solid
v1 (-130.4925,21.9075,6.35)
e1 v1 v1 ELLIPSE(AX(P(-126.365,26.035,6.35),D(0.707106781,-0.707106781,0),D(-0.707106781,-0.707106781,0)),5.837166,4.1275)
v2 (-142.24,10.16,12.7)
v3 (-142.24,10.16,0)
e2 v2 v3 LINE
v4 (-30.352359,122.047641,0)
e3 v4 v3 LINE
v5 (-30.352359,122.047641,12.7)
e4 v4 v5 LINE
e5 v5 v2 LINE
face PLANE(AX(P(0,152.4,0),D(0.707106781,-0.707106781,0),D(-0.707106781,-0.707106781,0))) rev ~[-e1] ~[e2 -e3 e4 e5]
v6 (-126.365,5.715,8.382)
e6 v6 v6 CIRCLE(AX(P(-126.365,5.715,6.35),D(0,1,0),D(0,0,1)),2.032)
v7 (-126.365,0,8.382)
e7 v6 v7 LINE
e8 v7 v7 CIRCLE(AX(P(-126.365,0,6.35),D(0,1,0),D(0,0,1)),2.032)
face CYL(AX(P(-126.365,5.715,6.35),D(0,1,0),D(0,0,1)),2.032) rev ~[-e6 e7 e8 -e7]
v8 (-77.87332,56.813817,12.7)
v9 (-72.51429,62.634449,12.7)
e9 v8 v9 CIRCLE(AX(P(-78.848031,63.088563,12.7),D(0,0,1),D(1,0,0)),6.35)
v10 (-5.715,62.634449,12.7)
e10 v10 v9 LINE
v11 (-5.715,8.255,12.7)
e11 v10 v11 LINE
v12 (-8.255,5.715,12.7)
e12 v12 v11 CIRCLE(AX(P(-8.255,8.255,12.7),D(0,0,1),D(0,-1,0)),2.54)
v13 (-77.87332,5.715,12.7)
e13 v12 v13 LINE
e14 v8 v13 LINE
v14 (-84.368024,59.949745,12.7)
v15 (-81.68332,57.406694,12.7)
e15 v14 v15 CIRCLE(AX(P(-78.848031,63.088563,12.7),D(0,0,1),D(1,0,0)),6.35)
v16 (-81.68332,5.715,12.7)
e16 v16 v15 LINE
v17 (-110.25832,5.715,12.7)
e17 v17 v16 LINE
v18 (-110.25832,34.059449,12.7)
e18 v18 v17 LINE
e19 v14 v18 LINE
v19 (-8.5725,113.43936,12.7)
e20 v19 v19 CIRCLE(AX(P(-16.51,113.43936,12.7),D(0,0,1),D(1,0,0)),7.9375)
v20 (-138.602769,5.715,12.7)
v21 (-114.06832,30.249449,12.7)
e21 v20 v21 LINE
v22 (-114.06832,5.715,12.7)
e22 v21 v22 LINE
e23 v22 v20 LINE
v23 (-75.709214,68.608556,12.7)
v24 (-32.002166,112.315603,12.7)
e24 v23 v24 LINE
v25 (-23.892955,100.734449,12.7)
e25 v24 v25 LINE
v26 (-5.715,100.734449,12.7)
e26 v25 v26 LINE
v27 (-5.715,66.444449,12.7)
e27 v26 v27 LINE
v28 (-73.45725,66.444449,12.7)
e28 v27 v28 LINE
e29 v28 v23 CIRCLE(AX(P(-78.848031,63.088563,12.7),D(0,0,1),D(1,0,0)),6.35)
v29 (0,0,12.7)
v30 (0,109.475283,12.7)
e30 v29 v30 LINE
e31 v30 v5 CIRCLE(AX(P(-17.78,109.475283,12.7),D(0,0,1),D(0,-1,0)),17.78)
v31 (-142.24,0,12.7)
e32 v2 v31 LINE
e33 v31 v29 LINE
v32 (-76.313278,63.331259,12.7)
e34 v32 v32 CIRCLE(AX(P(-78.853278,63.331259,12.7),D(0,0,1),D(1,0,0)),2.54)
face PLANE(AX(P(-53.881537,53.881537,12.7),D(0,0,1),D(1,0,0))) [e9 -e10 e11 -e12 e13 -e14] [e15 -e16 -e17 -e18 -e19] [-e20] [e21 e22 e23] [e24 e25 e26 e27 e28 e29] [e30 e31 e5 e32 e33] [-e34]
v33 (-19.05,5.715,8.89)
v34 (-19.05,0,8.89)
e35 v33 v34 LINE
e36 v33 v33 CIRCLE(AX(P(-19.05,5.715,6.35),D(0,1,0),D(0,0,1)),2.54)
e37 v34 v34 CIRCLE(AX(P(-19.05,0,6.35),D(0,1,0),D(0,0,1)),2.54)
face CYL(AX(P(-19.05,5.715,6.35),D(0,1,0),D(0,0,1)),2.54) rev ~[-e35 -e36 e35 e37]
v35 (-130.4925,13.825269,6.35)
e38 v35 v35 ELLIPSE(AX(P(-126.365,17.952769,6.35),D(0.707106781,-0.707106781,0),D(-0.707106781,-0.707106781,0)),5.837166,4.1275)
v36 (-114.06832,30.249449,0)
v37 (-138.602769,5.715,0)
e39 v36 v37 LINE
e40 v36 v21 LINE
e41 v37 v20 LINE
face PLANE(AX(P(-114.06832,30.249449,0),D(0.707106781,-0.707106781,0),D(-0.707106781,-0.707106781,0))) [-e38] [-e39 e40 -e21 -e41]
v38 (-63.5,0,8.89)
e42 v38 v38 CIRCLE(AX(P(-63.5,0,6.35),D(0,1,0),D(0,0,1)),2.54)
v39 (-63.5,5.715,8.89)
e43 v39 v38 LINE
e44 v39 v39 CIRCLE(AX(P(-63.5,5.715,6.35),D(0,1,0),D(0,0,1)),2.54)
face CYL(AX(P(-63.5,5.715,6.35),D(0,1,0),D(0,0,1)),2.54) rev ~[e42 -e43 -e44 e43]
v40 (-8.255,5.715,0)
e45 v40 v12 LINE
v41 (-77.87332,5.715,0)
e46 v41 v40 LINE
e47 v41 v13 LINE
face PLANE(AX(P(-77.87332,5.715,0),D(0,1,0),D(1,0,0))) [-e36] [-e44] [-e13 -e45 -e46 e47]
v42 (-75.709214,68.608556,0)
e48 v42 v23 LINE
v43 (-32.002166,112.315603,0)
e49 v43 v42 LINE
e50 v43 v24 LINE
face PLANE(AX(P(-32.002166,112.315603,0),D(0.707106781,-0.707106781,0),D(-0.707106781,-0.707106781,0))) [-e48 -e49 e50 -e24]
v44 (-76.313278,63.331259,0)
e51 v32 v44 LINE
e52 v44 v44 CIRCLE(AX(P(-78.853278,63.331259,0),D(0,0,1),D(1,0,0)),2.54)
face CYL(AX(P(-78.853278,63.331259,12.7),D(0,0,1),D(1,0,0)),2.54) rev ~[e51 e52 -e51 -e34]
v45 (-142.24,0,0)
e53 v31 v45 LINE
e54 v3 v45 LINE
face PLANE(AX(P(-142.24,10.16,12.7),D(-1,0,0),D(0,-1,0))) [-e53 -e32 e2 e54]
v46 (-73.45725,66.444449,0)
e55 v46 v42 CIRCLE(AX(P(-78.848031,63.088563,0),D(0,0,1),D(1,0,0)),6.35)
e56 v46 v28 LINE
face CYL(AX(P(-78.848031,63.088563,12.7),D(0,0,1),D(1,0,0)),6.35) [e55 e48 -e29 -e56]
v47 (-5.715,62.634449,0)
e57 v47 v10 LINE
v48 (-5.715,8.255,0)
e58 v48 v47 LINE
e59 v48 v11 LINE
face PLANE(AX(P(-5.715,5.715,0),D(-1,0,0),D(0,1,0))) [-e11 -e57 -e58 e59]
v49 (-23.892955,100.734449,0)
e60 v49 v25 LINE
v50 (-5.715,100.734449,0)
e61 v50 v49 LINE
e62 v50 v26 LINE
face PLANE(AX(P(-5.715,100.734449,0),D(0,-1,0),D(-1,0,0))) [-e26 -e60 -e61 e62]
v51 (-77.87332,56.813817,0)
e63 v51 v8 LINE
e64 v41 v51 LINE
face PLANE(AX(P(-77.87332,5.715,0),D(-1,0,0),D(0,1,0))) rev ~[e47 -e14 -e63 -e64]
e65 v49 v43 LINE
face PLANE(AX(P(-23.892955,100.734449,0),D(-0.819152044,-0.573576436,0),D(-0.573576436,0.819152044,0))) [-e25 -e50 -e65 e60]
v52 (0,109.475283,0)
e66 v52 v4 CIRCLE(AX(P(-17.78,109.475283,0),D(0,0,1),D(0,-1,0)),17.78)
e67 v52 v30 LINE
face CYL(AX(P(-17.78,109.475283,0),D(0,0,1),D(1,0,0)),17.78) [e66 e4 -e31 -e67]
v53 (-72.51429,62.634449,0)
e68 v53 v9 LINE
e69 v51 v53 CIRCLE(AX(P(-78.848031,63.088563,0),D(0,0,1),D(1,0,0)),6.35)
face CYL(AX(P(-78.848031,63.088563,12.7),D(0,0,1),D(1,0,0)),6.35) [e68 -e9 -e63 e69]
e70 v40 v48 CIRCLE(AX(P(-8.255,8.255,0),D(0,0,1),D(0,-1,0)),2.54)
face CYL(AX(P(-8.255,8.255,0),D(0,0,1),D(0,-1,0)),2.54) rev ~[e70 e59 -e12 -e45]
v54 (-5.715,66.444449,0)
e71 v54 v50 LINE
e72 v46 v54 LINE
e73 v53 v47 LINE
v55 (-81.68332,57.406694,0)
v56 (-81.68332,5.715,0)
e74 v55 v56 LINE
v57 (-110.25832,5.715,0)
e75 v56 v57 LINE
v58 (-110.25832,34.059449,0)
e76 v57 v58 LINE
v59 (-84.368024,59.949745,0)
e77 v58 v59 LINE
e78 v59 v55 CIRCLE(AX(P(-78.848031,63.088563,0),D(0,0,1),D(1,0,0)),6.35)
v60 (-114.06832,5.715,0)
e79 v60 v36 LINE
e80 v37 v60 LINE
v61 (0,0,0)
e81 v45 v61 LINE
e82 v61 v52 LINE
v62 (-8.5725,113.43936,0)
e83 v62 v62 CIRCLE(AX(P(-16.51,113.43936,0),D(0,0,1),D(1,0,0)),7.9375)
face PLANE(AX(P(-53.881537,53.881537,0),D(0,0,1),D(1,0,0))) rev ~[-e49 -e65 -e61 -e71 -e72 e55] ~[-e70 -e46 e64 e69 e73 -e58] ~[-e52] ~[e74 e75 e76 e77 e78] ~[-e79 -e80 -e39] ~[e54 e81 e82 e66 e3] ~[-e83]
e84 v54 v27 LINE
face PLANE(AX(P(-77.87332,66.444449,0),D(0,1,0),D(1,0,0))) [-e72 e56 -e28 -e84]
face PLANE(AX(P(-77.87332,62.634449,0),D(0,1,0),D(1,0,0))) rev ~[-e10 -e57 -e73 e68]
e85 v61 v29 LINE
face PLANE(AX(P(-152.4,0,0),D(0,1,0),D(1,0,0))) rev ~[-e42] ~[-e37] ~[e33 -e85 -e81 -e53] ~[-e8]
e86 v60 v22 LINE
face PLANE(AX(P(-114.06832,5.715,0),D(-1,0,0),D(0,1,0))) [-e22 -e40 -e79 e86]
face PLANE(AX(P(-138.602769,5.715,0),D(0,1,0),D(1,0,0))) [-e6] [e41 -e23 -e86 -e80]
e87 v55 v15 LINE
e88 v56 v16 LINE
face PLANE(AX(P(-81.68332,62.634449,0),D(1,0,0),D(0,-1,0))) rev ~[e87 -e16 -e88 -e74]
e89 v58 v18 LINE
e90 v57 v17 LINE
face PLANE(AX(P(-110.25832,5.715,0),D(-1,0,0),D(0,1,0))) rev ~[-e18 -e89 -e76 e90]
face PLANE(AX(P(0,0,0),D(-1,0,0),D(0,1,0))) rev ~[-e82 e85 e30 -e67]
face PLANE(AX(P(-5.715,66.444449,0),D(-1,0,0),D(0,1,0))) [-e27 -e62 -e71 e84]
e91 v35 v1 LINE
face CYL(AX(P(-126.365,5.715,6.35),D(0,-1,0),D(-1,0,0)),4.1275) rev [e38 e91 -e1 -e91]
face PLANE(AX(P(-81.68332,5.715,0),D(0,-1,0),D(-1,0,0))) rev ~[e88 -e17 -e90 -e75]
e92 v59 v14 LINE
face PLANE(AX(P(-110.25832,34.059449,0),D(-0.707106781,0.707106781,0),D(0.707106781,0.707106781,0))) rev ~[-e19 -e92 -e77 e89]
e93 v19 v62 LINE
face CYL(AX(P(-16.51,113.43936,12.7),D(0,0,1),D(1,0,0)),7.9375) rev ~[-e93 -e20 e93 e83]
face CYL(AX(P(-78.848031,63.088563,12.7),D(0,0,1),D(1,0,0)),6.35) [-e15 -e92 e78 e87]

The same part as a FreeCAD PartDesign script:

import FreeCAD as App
import Part
import Sketcher
from FreeCAD import Vector
Q = App.Units.Quantity


def edges_at(feature, points):
    """Names of the edges that pass closest to the given points."""
    edges = feature.Shape.Edges
    near = lambda p: min(range(len(edges)), key=lambda i: edges[i].distToShape(Part.Vertex(*p))[0])
    return sorted({f"Edge{near(p) + 1}" for p in points})


def add_polygon(sketch, points):
    """Adds a closed chain of lines whose ends are joined by coincident constraints."""
    first, n = sketch.GeometryCount, len(points)
    for a, b in zip(points, points[1:] + points[:1]):
        sketch.addGeometry(Part.LineSegment(App.Vector(*a, 0), App.Vector(*b, 0)), False)
    for i in range(n):
        sketch.addConstraint(Sketcher.Constraint("Coincident", first + i, 2, first + (i + 1) % n, 1))

doc = App.newDocument("Part")
params = doc.addObject("Spreadsheet::Sheet", "Params")
for row, (alias, value) in enumerate([
    ("sketch1_width", "6 in"),
    ("pad1_length", "0.5 in"),
    ("fillet_radius", "0.7 in"),
    ("sketch2_diameter", "0.625 in"),
    ("sketch2_width", "0.4 in"),
    ("pocket1_length", "1 in"),
    ("sketch3_height", "1.35 in"),
    ("sketch3_width", "1.125 in"),
    ("pocket2_length", "0.97 in"),
    ("sketch4_diameter", "0.16 in"),
    ("pocket3_length", "0.5 in"),
    ("sketch5_diameter", "0.325 in"),
    ("pocket4_length", "1.27 in"),
    ("sketch6_diameter", "0.2 in"),
    ("pocket5_length", "0.5 in"),
    ("fillet2_radius", "0.1 in"),
    ("sketch7_diameter", "0.5 in"),
    ("pad2_length", "0.5 in"),
    ("sketch8_diameter", "0.2 in"),
    ("pocket6_length", "0.5 in"),
], start=1):
    params.set(f"A{row}", alias)
    params.set(f"B{row}", "=" + value)
    params.setAlias(f"B{row}", alias)

body = doc.addObject("PartDesign::Body", "Body")

# Sketch on XY plane
sketch1 = body.newObject("Sketcher::SketchObject", "Sketch")
sketch1.AttachmentSupport = (doc.getObject("XY_Plane"), [""])
sketch1.MapMode = "FlatFace"
add_polygon(sketch1, [(-152, 0), (0, 0), (0, 152)])  # lines 0-2
sketch1.addConstraint(Sketcher.Constraint("Horizontal", 0))
sketch1.addConstraint(Sketcher.Constraint("Vertical", 1))
sketch1.addConstraint(Sketcher.Constraint("Coincident", 0, 2, -1, 1))
sketch1.addConstraint(Sketcher.Constraint("Equal", 0, 1))
sketch1.addConstraint(Sketcher.Constraint("DistanceX", 0, 1, 0, 2, Q("6 in")))
sketch1.setExpression("Constraints[7]", "Params.sketch1_width")
pad1 = body.newObject("PartDesign::Pad", "Pad")
pad1.Profile = sketch1
pad1.setExpression("Length", "Params.pad1_length")
doc.recompute()

fillet = body.newObject("PartDesign::Fillet", "Fillet")
fillet.Base = (pad1, edges_at(pad1, [(0, 152.4, 6.35)]))
fillet.setExpression("Radius", "Params.fillet_radius")

# Sketch on XY plane
sketch2 = body.newObject("Sketcher::SketchObject", "Sketch001")
sketch2.AttachmentSupport = (doc.getObject("XY_Plane"), [""])
sketch2.MapMode = "FlatFace"
sketch2.AttachmentOffset = App.Placement(Vector(0, 0, 0.5 * 25.4), App.Rotation())
sketch2.addGeometry(Part.Circle(Vector(-17, 113, 0), Vector(0, 0, 1), 8), False)  # 0
add_polygon(sketch2, [(-152, 0), (-142, 0), (-142, 10)])  # lines 1-3
sketch2.addConstraint(Sketcher.Constraint("Horizontal", 1))
sketch2.addConstraint(Sketcher.Constraint("Vertical", 2))
sketch2.addConstraint(Sketcher.Constraint("PointOnObject", 1, 2, -1))
sketch2.addConstraint(Sketcher.Constraint("Equal", 1, 2))
sketch2.addConstraint(Sketcher.Constraint("Diameter", 0, Q("0.625 in")))
sketch2.addConstraint(Sketcher.Constraint("DistanceX", 1, 1, 1, 2, Q("0.4 in")))
sketch2.addConstraint(Sketcher.Constraint("DistanceX", 3, 2, -1, 1, Q("6 in")))
sketch2.addConstraint(Sketcher.Constraint("DistanceX", 0, 3, -1, 1, Q("0.65 in")))
sketch2.addConstraint(Sketcher.Constraint("DistanceY", -1, 1, 0, 3, Q("113.43936 mm")))
sketch2.setExpression("Constraints[7]", "Params.sketch2_diameter")
sketch2.setExpression("Constraints[8]", "Params.sketch2_width")
pocket1 = body.newObject("PartDesign::Pocket", "Pocket")
pocket1.Profile = sketch2
pocket1.setExpression("Length", "Params.pocket1_length")

# Sketch on XY plane
sketch3 = body.newObject("Sketcher::SketchObject", "Sketch002")
sketch3.AttachmentSupport = (doc.getObject("XY_Plane"), [""])
sketch3.MapMode = "FlatFace"
add_polygon(sketch3, [(-139, 6), (-114, 6), (-114, 30)])  # lines 0-2
add_polygon(sketch3, [(-110, 34), (-110, 6), (-82, 6), (-82, 63)])  # lines 3-6
add_polygon(sketch3, [(-78, 66), (-6, 66), (-6, 101), (-24, 101), (-32, 112)])  # lines 7-11
add_polygon(sketch3, [(-78, 63), (-78, 6), (-6, 6), (-6, 63)])  # lines 12-15
sketch3.addConstraint(Sketcher.Constraint("Horizontal", 0))
sketch3.addConstraint(Sketcher.Constraint("Vertical", 1))
sketch3.addConstraint(Sketcher.Constraint("Vertical", 3))
sketch3.addConstraint(Sketcher.Constraint("Horizontal", 4))
sketch3.addConstraint(Sketcher.Constraint("Vertical", 5))
sketch3.addConstraint(Sketcher.Constraint("Horizontal", 7))
sketch3.addConstraint(Sketcher.Constraint("Vertical", 8))
sketch3.addConstraint(Sketcher.Constraint("Horizontal", 9))
sketch3.addConstraint(Sketcher.Constraint("Vertical", 12))
sketch3.addConstraint(Sketcher.Constraint("Horizontal", 13))
sketch3.addConstraint(Sketcher.Constraint("Vertical", 14))
sketch3.addConstraint(Sketcher.Constraint("Horizontal", 15))
sketch3.addConstraint(Sketcher.Constraint("Parallel", 2, 6))
sketch3.addConstraint(Sketcher.Constraint("Parallel", 6, 11))
sketch3.addConstraint(Sketcher.Constraint("Horizontal", 2, 2, 3, 2))
sketch3.addConstraint(Sketcher.Constraint("Horizontal", 4, 2, 12, 2))
sketch3.addConstraint(Sketcher.Constraint("Horizontal", 5, 2, 14, 2))
sketch3.addConstraint(Sketcher.Constraint("Vertical", 11, 2, 12, 2))
sketch3.addConstraint(Sketcher.Constraint("Vertical", 8, 2, 13, 2))
sketch3.addConstraint(Sketcher.Constraint("Equal", 0, 1))
sketch3.addConstraint(Sketcher.Constraint("Angle", 10, Q("125 deg")))
sketch3.addConstraint(Sketcher.Constraint("DistanceY", 8, 1, 8, 2, Q("1.35 in")))
sketch3.addConstraint(Sketcher.Constraint("DistanceY", 5, 2, 8, 2, Q("1.5 in")))
sketch3.addConstraint(Sketcher.Constraint("DistanceX", 4, 1, 4, 2, Q("1.125 in")))
sketch3.addConstraint(Sketcher.Constraint("DistanceX", 0, 2, 3, 2, Q("0.15 in")))
sketch3.addConstraint(Sketcher.Constraint("DistanceY", 1, 2, 6, 2, Q("0.15 in")))
sketch3.addConstraint(Sketcher.Constraint("DistanceX", 5, 2, 11, 2, Q("0.15 in")))
sketch3.addConstraint(Sketcher.Constraint("DistanceY", -1, 1, 0, 2, Q("0.225 in")))
sketch3.addConstraint(Sketcher.Constraint("DistanceX", 7, 2, -1, 1, Q("0.225 in")))
sketch3.addConstraint(Sketcher.Constraint("DistanceX", 0, 1, 0, 2, Q("24.534449 mm")))
sketch3.addConstraint(Sketcher.Constraint("DistanceX", 7, 1, 7, 2, Q("72.15832 mm")))
sketch3.addConstraint(Sketcher.Constraint("Distance", 10, Q("14.137978 mm")))
sketch3.setExpression("Constraints[37]", "Params.sketch3_height")
sketch3.setExpression("Constraints[39]", "Params.sketch3_width")
pocket2 = body.newObject("PartDesign::Pocket", "Pocket001")
pocket2.Profile = sketch3
pocket2.setExpression("Length", "Params.pocket2_length")
pocket2.Reversed = True

# Sketch on XZ plane
sketch4 = body.newObject("Sketcher::SketchObject", "Sketch003")
sketch4.AttachmentSupport = (doc.getObject("XZ_Plane"), [""])
sketch4.MapMode = "FlatFace"
sketch4.AttachmentOffset = App.Placement(Vector(0, 0, -0.225 * 25.4), App.Rotation())
sketch4.addGeometry(Part.Circle(Vector(-126.4, 6.3, 0), Vector(0, 0, 1), 2), False)
sketch4.addConstraint(Sketcher.Constraint("Diameter", 0, Q("0.16 in")))
sketch4.addConstraint(Sketcher.Constraint("DistanceY", -1, 1, 0, 3, Q("0.25 in")))
sketch4.addConstraint(Sketcher.Constraint("DistanceX", 0, 3, -1, 1, Q("4.975 in")))
sketch4.setExpression("Constraints[0]", "Params.sketch4_diameter")
pocket3 = body.newObject("PartDesign::Pocket", "Pocket002")
pocket3.Profile = sketch4
pocket3.setExpression("Length", "Params.pocket3_length")
pocket3.Reversed = True

# Sketch on XZ plane
sketch5 = body.newObject("Sketcher::SketchObject", "Sketch004")
sketch5.AttachmentSupport = (doc.getObject("XZ_Plane"), [""])
sketch5.MapMode = "FlatFace"
sketch5.AttachmentOffset = App.Placement(Vector(0, 0, -0.225 * 25.4), App.Rotation())
sketch5.addGeometry(Part.Circle(Vector(-126.4, 6.3, 0), Vector(0, 0, 1), 4.1), False)
sketch5.addConstraint(Sketcher.Constraint("Diameter", 0, Q("0.325 in")))
sketch5.addConstraint(Sketcher.Constraint("DistanceY", -1, 1, 0, 3, Q("0.25 in")))
sketch5.addConstraint(Sketcher.Constraint("DistanceX", 0, 3, -1, 1, Q("4.975 in")))
sketch5.setExpression("Constraints[0]", "Params.sketch5_diameter")
pocket4 = body.newObject("PartDesign::Pocket", "Pocket003")
pocket4.Profile = sketch5
pocket4.setExpression("Length", "Params.pocket4_length")

# Sketch on XZ plane
sketch6 = body.newObject("Sketcher::SketchObject", "Sketch005")
sketch6.AttachmentSupport = (doc.getObject("XZ_Plane"), [""])
sketch6.MapMode = "FlatFace"
sketch6.AttachmentOffset = App.Placement(Vector(0, 0, -0.225 * 25.4), App.Rotation())
sketch6.addGeometry(Part.Circle(Vector(-19.1, 6.3, 0), Vector(0, 0, 1), 2.5), False)
sketch6.addGeometry(Part.Circle(Vector(-63.5, 6.3, 0), Vector(0, 0, 1), 2.5), False)
sketch6.addConstraint(Sketcher.Constraint("Equal", 0, 1))
sketch6.addConstraint(Sketcher.Constraint("Horizontal", 0, 3, 1, 3))
sketch6.addConstraint(Sketcher.Constraint("Diameter", 0, Q("0.2 in")))
sketch6.addConstraint(Sketcher.Constraint("DistanceX", 1, 3, -1, 1, Q("2.5 in")))
sketch6.addConstraint(Sketcher.Constraint("DistanceX", 0, 3, -1, 1, Q("0.75 in")))
sketch6.addConstraint(Sketcher.Constraint("DistanceY", -1, 1, 0, 3, Q("0.25 in")))
sketch6.setExpression("Constraints[2]", "Params.sketch6_diameter")
pocket5 = body.newObject("PartDesign::Pocket", "Pocket004")
pocket5.Profile = sketch6
pocket5.setExpression("Length", "Params.pocket5_length")
pocket5.Reversed = True
doc.recompute()

fillet2 = body.newObject("PartDesign::Fillet", "Fillet001")
fillet2.Base = (pocket5, edges_at(pocket5, [(-5.715, 5.715, 6.35)]))
fillet2.setExpression("Radius", "Params.fillet2_radius")

# Sketch on XY plane
sketch7 = body.newObject("Sketcher::SketchObject", "Sketch006")
sketch7.AttachmentSupport = (doc.getObject("XY_Plane"), [""])
sketch7.MapMode = "FlatFace"
sketch7.AttachmentOffset = App.Placement(Vector(0, 0, 0.5 * 25.4), App.Rotation())
sketch7.addGeometry(Part.Circle(Vector(-79, 63, 0), Vector(0, 0, 1), 6), False)
sketch7.addConstraint(Sketcher.Constraint("Diameter", 0, Q("0.5 in")))
sketch7.addConstraint(Sketcher.Constraint("DistanceX", 0, 3, -1, 1, Q("78.848031 mm")))
sketch7.addConstraint(Sketcher.Constraint("DistanceY", -1, 1, 0, 3, Q("63.088563 mm")))
sketch7.setExpression("Constraints[0]", "Params.sketch7_diameter")
pad2 = body.newObject("PartDesign::Pad", "Pad001")
pad2.Profile = sketch7
pad2.setExpression("Length", "Params.pad2_length")
pad2.Reversed = True

# Sketch on XY plane
sketch8 = body.newObject("Sketcher::SketchObject", "Sketch007")
sketch8.AttachmentSupport = (doc.getObject("XY_Plane"), [""])
sketch8.MapMode = "FlatFace"
sketch8.AttachmentOffset = App.Placement(Vector(0, 0, 0.5 * 25.4), App.Rotation())
sketch8.addGeometry(Part.Circle(Vector(-78.9, 63.3, 0), Vector(0, 0, 1), 2.5), False)
sketch8.addConstraint(Sketcher.Constraint("Diameter", 0, Q("0.2 in")))
sketch8.addConstraint(Sketcher.Constraint("DistanceX", 0, 3, -1, 1, Q("78.853278 mm")))
sketch8.addConstraint(Sketcher.Constraint("DistanceY", -1, 1, 0, 3, Q("63.331259 mm")))
sketch8.setExpression("Constraints[0]", "Params.sketch8_diameter")
pocket6 = body.newObject("PartDesign::Pocket", "Pocket005")
pocket6.Profile = sketch8
pocket6.setExpression("Length", "Params.pocket6_length")

doc.recompute()
